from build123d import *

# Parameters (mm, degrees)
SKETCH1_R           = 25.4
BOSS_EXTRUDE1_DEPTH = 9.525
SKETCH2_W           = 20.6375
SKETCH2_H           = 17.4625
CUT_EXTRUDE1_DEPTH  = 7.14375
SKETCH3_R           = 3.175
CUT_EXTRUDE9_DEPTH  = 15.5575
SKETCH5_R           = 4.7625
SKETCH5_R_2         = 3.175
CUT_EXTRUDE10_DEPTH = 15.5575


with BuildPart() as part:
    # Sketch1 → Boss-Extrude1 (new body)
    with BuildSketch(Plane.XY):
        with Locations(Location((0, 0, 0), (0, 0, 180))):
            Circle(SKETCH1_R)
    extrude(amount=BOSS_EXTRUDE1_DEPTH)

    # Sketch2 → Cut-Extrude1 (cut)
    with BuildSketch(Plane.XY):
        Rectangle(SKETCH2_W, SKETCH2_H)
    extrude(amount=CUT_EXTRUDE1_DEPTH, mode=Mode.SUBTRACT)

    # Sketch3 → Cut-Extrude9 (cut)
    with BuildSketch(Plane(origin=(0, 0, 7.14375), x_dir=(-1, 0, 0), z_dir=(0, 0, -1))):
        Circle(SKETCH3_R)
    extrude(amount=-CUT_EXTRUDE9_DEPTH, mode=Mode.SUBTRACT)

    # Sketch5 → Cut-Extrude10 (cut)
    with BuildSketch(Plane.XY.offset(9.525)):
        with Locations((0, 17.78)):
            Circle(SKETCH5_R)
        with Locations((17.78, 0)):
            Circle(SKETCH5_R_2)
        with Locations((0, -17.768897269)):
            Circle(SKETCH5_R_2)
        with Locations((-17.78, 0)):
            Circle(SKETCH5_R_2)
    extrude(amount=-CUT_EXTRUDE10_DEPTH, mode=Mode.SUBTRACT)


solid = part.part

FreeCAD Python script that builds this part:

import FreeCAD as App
import Part
import Sketcher
Q = App.Units.Quantity

doc = App.newDocument("Part")
params = doc.addObject("Spreadsheet::Sheet", "Params")
for row, (alias, value) in enumerate([
    ("sketch1_diameter", "2 in"),
    ("pad1_length", "0.375 in"),
    ("sketch2_width", "0.8125 in"),
    ("sketch2_height", "0.6875 in"),
    ("pocket1_length", "0.28125 in"),
    ("sketch3_diameter", "0.25 in"),
    ("pocket2_length", "0.6125 in"),
    ("sketch4_diameter", "0.25 in"),
    ("sketch4_diameter2", "0.375 in"),
    ("pocket3_length", "0.6125 in"),
], start=1):
    params.set(f"A{row}", alias)
    params.set(f"B{row}", "=" + value)
    params.setAlias(f"B{row}", alias)

body = doc.addObject("PartDesign::Body", "Body")

# Sketch on XY plane
sketch1 = body.newObject("Sketcher::SketchObject", "Sketch")
sketch1.AttachmentSupport = (doc.getObject("XY_Plane"), [""])
sketch1.MapMode = "FlatFace"
sketch1.addGeometry(Part.Circle(App.Vector(0, 0, 0), App.Vector(0, 0, 1), 25), False)
sketch1.addConstraint([
    Sketcher.Constraint("Coincident", 0, 3, -1, 1),
    Sketcher.Constraint("Diameter", 0, Q("2 in")),
])
sketch1.setExpression("Constraints[1]", "Params.sketch1_diameter")
pad1 = body.newObject("PartDesign::Pad", "Pad")
pad1.Profile = sketch1
pad1.setExpression("Length", "Params.pad1_length")

# Sketch on XY plane
sketch2 = body.newObject("Sketcher::SketchObject", "Sketch001")
sketch2.AttachmentSupport = (doc.getObject("XY_Plane"), [""])
sketch2.MapMode = "FlatFace"
sketch2.addGeometry([
    Part.LineSegment(App.Vector(-10, 9, 0), App.Vector(-10, -9, 0)),
    Part.LineSegment(App.Vector(-10, -9, 0), App.Vector(10, -9, 0)),
    Part.LineSegment(App.Vector(10, -9, 0), App.Vector(10, 9, 0)),
    Part.LineSegment(App.Vector(10, 9, 0), App.Vector(-10, 9, 0)),
], False)
sketch2.addConstraint([
    Sketcher.Constraint("Coincident", 0, 2, 1, 1),
    Sketcher.Constraint("Coincident", 1, 2, 2, 1),
    Sketcher.Constraint("Coincident", 2, 2, 3, 1),
    Sketcher.Constraint("Coincident", 3, 2, 0, 1),
    Sketcher.Constraint("Vertical", 0),
    Sketcher.Constraint("Horizontal", 1),
    Sketcher.Constraint("Vertical", 2),
    Sketcher.Constraint("Horizontal", 3),
    Sketcher.Constraint("Symmetric", 0, 2, 2, 2, -1, 1),
    Sketcher.Constraint("DistanceX", 1, 1, 1, 2, Q("0.8125 in")),
    Sketcher.Constraint("DistanceY", 0, 2, 0, 1, Q("0.6875 in")),
])
sketch2.setExpression("Constraints[9]", "Params.sketch2_width")
sketch2.setExpression("Constraints[10]", "Params.sketch2_height")
pocket1 = body.newObject("PartDesign::Pocket", "Pocket")
pocket1.Profile = sketch2
pocket1.setExpression("Length", "Params.pocket1_length")
pocket1.Reversed = True

# Sketch on XY plane
sketch3 = body.newObject("Sketcher::SketchObject", "Sketch002")
sketch3.AttachmentSupport = (doc.getObject("XY_Plane"), [""])
sketch3.MapMode = "FlatFace"
sketch3.AttachmentOffset = App.Placement(App.Vector(0, 0, 0.28125 * 25.4), App.Rotation())
sketch3.addGeometry(Part.Circle(App.Vector(0, 0, 0), App.Vector(0, 0, 1), 3.2), False)
sketch3.addConstraint([
    Sketcher.Constraint("Coincident", 0, 3, -1, 1),
    Sketcher.Constraint("Diameter", 0, Q("0.25 in")),
])
sketch3.setExpression("Constraints[1]", "Params.sketch3_diameter")
pocket2 = body.newObject("PartDesign::Pocket", "Pocket001")
pocket2.Profile = sketch3
pocket2.setExpression("Length", "Params.pocket2_length")
pocket2.Reversed = True

# Sketch on XY plane
sketch4 = body.newObject("Sketcher::SketchObject", "Sketch003")
sketch4.AttachmentSupport = (doc.getObject("XY_Plane"), [""])
sketch4.MapMode = "FlatFace"
sketch4.AttachmentOffset = App.Placement(App.Vector(0, 0, 0.375 * 25.4), App.Rotation())
sketch4.addGeometry([
    Part.Circle(App.Vector(0, 17.8, 0), App.Vector(0, 0, 1), 4.8),
    Part.Circle(App.Vector(17.8, 0, 0), App.Vector(0, 0, 1), 3.2),
    Part.Circle(App.Vector(0, -17.8, 0), App.Vector(0, 0, 1), 3.2),
    Part.Circle(App.Vector(-17.8, 0, 0), App.Vector(0, 0, 1), 3.2),
], False)
sketch4.addConstraint([
    Sketcher.Constraint("Equal", 1, 2),
    Sketcher.Constraint("Equal", 2, 3),
    Sketcher.Constraint("Symmetric", 1, 3, 3, 3, -1, 1),
    Sketcher.Constraint("PointOnObject", 0, 3, -2),
    Sketcher.Constraint("PointOnObject", 1, 3, -1),
    Sketcher.Constraint("PointOnObject", 2, 3, -2),
    Sketcher.Constraint("Diameter", 1, Q("0.25 in")),
    Sketcher.Constraint("Diameter", 0, Q("0.375 in")),
    Sketcher.Constraint("DistanceY", -1, 1, 0, 3, Q("0.7 in")),
    Sketcher.Constraint("DistanceX", -1, 1, 1, 3, Q("0.7 in")),
    Sketcher.Constraint("DistanceY", 2, 3, -1, 1, Q("17.768897 mm")),
])
sketch4.setExpression("Constraints[6]", "Params.sketch4_diameter")
sketch4.setExpression("Constraints[7]", "Params.sketch4_diameter2")
pocket3 = body.newObject("PartDesign::Pocket", "Pocket002")
pocket3.Profile = sketch4
pocket3.setExpression("Length", "Params.pocket3_length")

doc.recompute()
